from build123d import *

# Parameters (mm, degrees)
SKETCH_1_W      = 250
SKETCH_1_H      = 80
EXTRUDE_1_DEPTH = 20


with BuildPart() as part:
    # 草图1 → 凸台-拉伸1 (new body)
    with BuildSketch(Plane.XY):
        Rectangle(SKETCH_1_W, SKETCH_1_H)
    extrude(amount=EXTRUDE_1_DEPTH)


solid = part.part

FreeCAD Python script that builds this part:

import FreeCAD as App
import Part
import Sketcher
from FreeCAD import Vector

doc = App.newDocument("Part")
body = doc.addObject("PartDesign::Body", "Body")

sketch1 = body.newObject("Sketcher::SketchObject", "Sketch")
sketch1.AttachmentSupport = (doc.getObject("XY_Plane"), [""])
sketch1.MapMode = "FlatFace"
sketch1.addGeometry([
    Part.LineSegment(Vector(-125, 40, 0), Vector(-125, -40, 0)),
    Part.LineSegment(Vector(-125, -40, 0), Vector(125, -40, 0)),
    Part.LineSegment(Vector(125, -40, 0), Vector(125, 40, 0)),
    Part.LineSegment(Vector(125, 40, 0), Vector(-125, 40, 0)),
], False)
sketch1.addConstraint([
    Sketcher.Constraint("Coincident", 0, 2, 1, 1),
    Sketcher.Constraint("Coincident", 1, 2, 2, 1),
    Sketcher.Constraint("Coincident", 2, 2, 3, 1),
    Sketcher.Constraint("Coincident", 3, 2, 0, 1),
    Sketcher.Constraint("Vertical", 0),
    Sketcher.Constraint("Horizontal", 1),
    Sketcher.Constraint("Vertical", 2),
    Sketcher.Constraint("Horizontal", 3),
    Sketcher.Constraint("Symmetric", 0, 2, 2, 2, -1, 1),
    Sketcher.Constraint("DistanceX", 1, 1, 1, 2, 250.0),
    Sketcher.Constraint("DistanceY", 0, 2, 0, 1, 80.0),
])
pad1 = body.newObject("PartDesign::Pad", "Pad")
pad1.Profile = sketch1
pad1.Length = 20

doc.recompute()
